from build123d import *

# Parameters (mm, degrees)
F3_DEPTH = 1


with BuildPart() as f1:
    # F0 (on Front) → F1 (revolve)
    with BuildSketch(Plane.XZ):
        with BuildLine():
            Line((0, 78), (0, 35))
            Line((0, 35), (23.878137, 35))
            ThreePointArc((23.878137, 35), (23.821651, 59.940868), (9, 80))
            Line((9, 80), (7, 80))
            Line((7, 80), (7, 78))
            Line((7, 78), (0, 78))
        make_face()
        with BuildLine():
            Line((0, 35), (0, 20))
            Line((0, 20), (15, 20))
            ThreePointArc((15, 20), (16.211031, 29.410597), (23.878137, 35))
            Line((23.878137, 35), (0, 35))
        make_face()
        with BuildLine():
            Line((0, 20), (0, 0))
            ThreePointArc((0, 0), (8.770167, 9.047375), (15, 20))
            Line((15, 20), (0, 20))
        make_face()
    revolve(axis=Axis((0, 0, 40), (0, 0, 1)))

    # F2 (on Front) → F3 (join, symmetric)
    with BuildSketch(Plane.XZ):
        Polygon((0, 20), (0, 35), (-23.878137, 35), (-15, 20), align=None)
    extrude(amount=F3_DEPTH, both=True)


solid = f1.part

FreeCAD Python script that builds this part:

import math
import FreeCAD as App
import Part
import Sketcher

doc = App.newDocument("Part")
body = doc.addObject("PartDesign::Body", "Body")

sketch1 = doc.addObject("Sketcher::SketchObject", "Sketch")
body.addObject(sketch1)
sketch1.AttachmentSupport = (doc.XZ_Plane, [""])
sketch1.MapMode = "FlatFace"
sketch1.addGeometry([
    Part.LineSegment(App.Vector(0, 78, 0), App.Vector(0, 0, 0)),
    Part.ArcOfCircle(Part.Circle(App.Vector(-31.2, 39, 0), App.Vector(0, 0, 1), 50), math.radians(-51), math.radians(-22)),
    Part.ArcOfCircle(Part.Circle(App.Vector(26.5, 23.3, 0), App.Vector(0, 0, 1), 12), math.radians(103), math.radians(196)),
    Part.ArcOfCircle(Part.Circle(App.Vector(-14.2, 47.4, 0), App.Vector(0, 0, 1), 40), math.radians(-18), math.radians(55)),
    Part.LineSegment(App.Vector(9, 80, 0), App.Vector(7, 80, 0)),
    Part.LineSegment(App.Vector(7, 80, 0), App.Vector(7, 78, 0)),
    Part.LineSegment(App.Vector(7, 78, 0), App.Vector(0, 78, 0)),
], False)
sketch1.addConstraint([
    Sketcher.Constraint("Coincident", 0, 2, 1, 1),
    Sketcher.Constraint("Coincident", 1, 2, 2, 2),
    Sketcher.Constraint("Coincident", 2, 1, 3, 1),
    Sketcher.Constraint("Coincident", 3, 2, 4, 1),
    Sketcher.Constraint("Coincident", 4, 2, 5, 1),
    Sketcher.Constraint("Coincident", 5, 2, 6, 1),
    Sketcher.Constraint("Coincident", 6, 2, 0, 1),
    Sketcher.Constraint("Vertical", 0),
    Sketcher.Constraint("Horizontal", 4),
    Sketcher.Constraint("Vertical", 5),
    Sketcher.Constraint("Horizontal", 6),
    Sketcher.Constraint("Coincident", 0, 2, -1, 1),
    Sketcher.Constraint("Equal", 4, 5),
    Sketcher.Constraint("Radius", 2, 12.0),
    Sketcher.Constraint("Radius", 3, 40.000001),
    Sketcher.Constraint("DistanceX", 4, 2, 4, 1, 2.0),
    Sketcher.Constraint("DistanceX", 6, 2, 6, 1, 7.0),
    Sketcher.Constraint("DistanceY", 0, 2, 0, 1, 78.0),
    Sketcher.Constraint("DistanceX", -1, 1, 1, 2, 15.0),
    Sketcher.Constraint("DistanceY", -1, 1, 1, 2, 20.0),
    Sketcher.Constraint("DistanceY", -1, 1, 2, 1, 35.0),
    Sketcher.Constraint("Radius", 1, 49.999987),
    Sketcher.Constraint("DistanceX", 1, 3, 3, 3, 17.0734),
])
revolution = doc.addObject("PartDesign::Revolution", "Revolution")
body.addObject(revolution)
revolution.Profile = sketch1
revolution.ReferenceAxis = (sketch1, ["V_Axis"])
revolution.Angle = 360

sketch2 = doc.addObject("Sketcher::SketchObject", "Sketch001")
body.addObject(sketch2)
sketch2.AttachmentSupport = (doc.XZ_Plane, [""])
sketch2.MapMode = "FlatFace"
sketch2.addGeometry([
    Part.LineSegment(App.Vector(0, 20, 0), App.Vector(0, 35, 0)),
    Part.LineSegment(App.Vector(0, 35, 0), App.Vector(-24, 35, 0)),
    Part.LineSegment(App.Vector(-24, 35, 0), App.Vector(-15, 20, 0)),
    Part.LineSegment(App.Vector(-15, 20, 0), App.Vector(0, 20, 0)),
], False)
sketch2.addConstraint([
    Sketcher.Constraint("Coincident", 0, 2, 1, 1),
    Sketcher.Constraint("Coincident", 1, 2, 2, 1),
    Sketcher.Constraint("Coincident", 2, 2, 3, 1),
    Sketcher.Constraint("Coincident", 3, 2, 0, 1),
    Sketcher.Constraint("Vertical", 0),
    Sketcher.Constraint("Horizontal", 1),
    Sketcher.Constraint("Horizontal", 3),
    Sketcher.Constraint("PointOnObject", 0, 2, -2),
    Sketcher.Constraint("Equal", 3, 0),
    Sketcher.Constraint("DistanceX", 3, 1, 3, 2, 15.0),
    Sketcher.Constraint("DistanceY", -1, 1, 0, 2, 35.0),
    Sketcher.Constraint("Distance", 2, 17.430471),
])
pad1 = doc.addObject("PartDesign::Pad", "Pad")
body.addObject(pad1)
pad1.Profile = sketch2
pad1.Length = 2
pad1.Midplane = True

doc.recompute()
